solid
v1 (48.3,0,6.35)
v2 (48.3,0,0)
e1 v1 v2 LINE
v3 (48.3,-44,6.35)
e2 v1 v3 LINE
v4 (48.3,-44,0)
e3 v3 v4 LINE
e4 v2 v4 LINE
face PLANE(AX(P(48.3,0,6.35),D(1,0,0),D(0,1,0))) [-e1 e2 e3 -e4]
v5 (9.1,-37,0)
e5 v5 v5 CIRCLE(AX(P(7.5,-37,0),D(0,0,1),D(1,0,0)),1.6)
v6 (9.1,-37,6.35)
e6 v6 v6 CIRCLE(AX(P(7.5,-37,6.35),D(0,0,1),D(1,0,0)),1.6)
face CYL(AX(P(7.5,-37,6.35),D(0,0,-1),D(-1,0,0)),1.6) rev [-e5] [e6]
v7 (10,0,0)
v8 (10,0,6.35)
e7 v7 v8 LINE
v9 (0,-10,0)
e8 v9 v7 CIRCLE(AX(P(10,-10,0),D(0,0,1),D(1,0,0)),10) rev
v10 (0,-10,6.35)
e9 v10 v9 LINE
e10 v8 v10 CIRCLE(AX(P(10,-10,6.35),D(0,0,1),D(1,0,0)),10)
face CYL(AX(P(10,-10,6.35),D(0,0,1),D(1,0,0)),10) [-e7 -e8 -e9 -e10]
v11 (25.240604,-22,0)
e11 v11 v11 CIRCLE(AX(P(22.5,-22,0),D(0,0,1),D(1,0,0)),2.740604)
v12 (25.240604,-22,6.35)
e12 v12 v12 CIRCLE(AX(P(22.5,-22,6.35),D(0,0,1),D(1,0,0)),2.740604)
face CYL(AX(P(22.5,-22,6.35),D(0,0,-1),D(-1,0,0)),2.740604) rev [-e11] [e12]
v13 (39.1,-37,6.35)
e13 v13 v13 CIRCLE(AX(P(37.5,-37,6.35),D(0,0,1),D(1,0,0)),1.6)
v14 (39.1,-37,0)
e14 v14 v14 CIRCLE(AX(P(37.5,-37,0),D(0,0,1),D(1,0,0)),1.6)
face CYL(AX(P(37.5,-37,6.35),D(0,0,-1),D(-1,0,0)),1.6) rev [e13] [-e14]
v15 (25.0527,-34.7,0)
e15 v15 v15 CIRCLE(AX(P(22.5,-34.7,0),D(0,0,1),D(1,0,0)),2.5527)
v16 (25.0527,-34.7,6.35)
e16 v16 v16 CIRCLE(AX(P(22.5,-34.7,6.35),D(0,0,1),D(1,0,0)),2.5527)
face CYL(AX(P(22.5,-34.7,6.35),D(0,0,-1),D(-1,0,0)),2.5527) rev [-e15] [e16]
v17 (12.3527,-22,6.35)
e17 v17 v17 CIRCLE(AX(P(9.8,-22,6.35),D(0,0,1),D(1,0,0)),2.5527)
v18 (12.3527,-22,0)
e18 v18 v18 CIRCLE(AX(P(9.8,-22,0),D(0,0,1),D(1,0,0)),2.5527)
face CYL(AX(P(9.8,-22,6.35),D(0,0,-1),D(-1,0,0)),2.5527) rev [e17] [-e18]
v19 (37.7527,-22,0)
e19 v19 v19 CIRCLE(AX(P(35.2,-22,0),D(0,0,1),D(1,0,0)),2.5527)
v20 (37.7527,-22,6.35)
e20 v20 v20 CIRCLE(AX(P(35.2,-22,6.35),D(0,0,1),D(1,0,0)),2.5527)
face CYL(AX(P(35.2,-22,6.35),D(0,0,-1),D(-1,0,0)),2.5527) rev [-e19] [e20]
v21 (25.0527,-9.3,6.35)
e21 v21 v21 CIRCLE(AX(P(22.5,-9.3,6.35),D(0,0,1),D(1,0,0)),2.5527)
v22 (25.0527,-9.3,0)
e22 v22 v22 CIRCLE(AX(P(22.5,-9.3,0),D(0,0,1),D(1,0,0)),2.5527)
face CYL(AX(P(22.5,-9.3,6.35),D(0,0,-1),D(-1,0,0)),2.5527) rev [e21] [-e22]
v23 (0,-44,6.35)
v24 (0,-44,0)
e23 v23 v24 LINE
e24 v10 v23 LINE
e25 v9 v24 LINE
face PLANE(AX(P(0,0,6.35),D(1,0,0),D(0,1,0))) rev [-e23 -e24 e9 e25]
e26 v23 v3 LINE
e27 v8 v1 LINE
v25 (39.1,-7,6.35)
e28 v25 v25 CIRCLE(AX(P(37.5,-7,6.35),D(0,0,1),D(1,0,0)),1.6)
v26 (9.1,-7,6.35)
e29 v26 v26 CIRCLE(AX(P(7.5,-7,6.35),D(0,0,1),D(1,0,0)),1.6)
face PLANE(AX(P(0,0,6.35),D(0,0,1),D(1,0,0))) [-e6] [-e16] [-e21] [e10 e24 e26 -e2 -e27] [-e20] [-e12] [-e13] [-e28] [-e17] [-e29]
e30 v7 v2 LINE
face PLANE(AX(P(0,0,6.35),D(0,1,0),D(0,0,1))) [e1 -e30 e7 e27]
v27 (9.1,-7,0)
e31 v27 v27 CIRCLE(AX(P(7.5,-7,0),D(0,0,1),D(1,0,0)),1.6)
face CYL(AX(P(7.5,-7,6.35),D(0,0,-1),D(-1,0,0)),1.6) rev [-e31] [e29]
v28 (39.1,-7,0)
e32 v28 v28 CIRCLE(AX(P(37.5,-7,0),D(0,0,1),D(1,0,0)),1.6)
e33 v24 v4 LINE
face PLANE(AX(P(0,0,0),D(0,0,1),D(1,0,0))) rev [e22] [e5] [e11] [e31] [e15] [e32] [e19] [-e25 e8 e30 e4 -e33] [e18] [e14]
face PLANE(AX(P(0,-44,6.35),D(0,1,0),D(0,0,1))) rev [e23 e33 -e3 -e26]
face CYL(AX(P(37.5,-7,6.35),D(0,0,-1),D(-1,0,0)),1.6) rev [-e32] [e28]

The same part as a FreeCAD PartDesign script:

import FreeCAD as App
import Part
import Sketcher

V = App.Vector


def edges_at(feature, points):
    """Names of the edges that pass closest to the given points."""
    edges = feature.Shape.Edges
    near = lambda p: min(range(len(edges)), key=lambda i: edges[i].distToShape(Part.Vertex(*p))[0])
    return sorted({f"Edge{near(p) + 1}" for p in points})

doc = App.newDocument("Part")
params = doc.addObject("Spreadsheet::Sheet", "Params")
for row, (alias, value) in enumerate([
    ("sketch1_diameter", "3.2 mm"),
    ("sketch1_height", "44 mm"),
    ("sketch1_width", "48.3 mm"),
    ("pad1_length", "6.35 mm"),
    ("hole_diameter", "5.1054 mm"),
    ("fillet_radius", "10 mm"),
], start=1):
    params.set(f"A{row}", alias)
    params.set(f"B{row}", "=" + value)
    params.setAlias(f"B{row}", alias)

body = doc.addObject("PartDesign::Body", "Body")

sketch1 = body.newObject("Sketcher::SketchObject", "Sketch")
sketch1.AttachmentSupport = (doc.getObject("XY_Plane"), [""])
sketch1.MapMode = "FlatFace"
sketch1.addGeometry(Part.LineSegment(V(0, 0, 0), V(0, -44, 0)), False)
sketch1.addGeometry(Part.LineSegment(V(0, -44, 0), V(48.3, -44, 0)), False)
sketch1.addGeometry(Part.LineSegment(V(48.3, -44, 0), V(48.3, 0, 0)), False)
sketch1.addGeometry(Part.LineSegment(V(48.3, 0, 0), V(0, 0, 0)), False)
sketch1.addGeometry(Part.Circle(V(7.5, -37, 0), V(0, 0, 1), 1.6), False)
sketch1.addGeometry(Part.Circle(V(22.5, -34.7, 0), V(0, 0, 1), 2.5527), False)
sketch1.addGeometry(Part.Circle(V(37.5, -37, 0), V(0, 0, 1), 1.6), False)
sketch1.addGeometry(Part.Circle(V(9.8, -22, 0), V(0, 0, 1), 2.5527), False)
sketch1.addGeometry(Part.Circle(V(7.5, -7, 0), V(0, 0, 1), 1.6), False)
sketch1.addGeometry(Part.Circle(V(22.5, -22, 0), V(0, 0, 1), 2.740604), False)
sketch1.addGeometry(Part.Circle(V(35.2, -22, 0), V(0, 0, 1), 2.5527), False)
sketch1.addGeometry(Part.Circle(V(22.5, -9.3, 0), V(0, 0, 1), 2.5527), False)
sketch1.addGeometry(Part.Circle(V(37.5, -7, 0), V(0, 0, 1), 1.6), False)
sketch1.addConstraint(Sketcher.Constraint("Coincident", 0, 2, 1, 1))
sketch1.addConstraint(Sketcher.Constraint("Coincident", 1, 2, 2, 1))
sketch1.addConstraint(Sketcher.Constraint("Coincident", 2, 2, 3, 1))
sketch1.addConstraint(Sketcher.Constraint("Coincident", 3, 2, 0, 1))
sketch1.addConstraint(Sketcher.Constraint("Vertical", 0))
sketch1.addConstraint(Sketcher.Constraint("Horizontal", 1))
sketch1.addConstraint(Sketcher.Constraint("Vertical", 2))
sketch1.addConstraint(Sketcher.Constraint("Horizontal", 3))
sketch1.addConstraint(Sketcher.Constraint("Coincident", 3, 2, -1, 1))
sketch1.addConstraint(Sketcher.Constraint("Equal", 4, 6))
sketch1.addConstraint(Sketcher.Constraint("Equal", 5, 7))
sketch1.addConstraint(Sketcher.Constraint("Equal", 6, 8))
sketch1.addConstraint(Sketcher.Constraint("Equal", 7, 10))
sketch1.addConstraint(Sketcher.Constraint("Equal", 10, 11))
sketch1.addConstraint(Sketcher.Constraint("Equal", 8, 12))
sketch1.addConstraint(Sketcher.Constraint("Horizontal", 4, 3, 6, 3))
sketch1.addConstraint(Sketcher.Constraint("Horizontal", 7, 3, 9, 3))
sketch1.addConstraint(Sketcher.Constraint("Horizontal", 9, 3, 10, 3))
sketch1.addConstraint(Sketcher.Constraint("Horizontal", 8, 3, 12, 3))
sketch1.addConstraint(Sketcher.Constraint("Vertical", 4, 3, 8, 3))
sketch1.addConstraint(Sketcher.Constraint("Vertical", 5, 3, 9, 3))
sketch1.addConstraint(Sketcher.Constraint("Vertical", 9, 3, 11, 3))
sketch1.addConstraint(Sketcher.Constraint("Vertical", 6, 3, 12, 3))
sketch1.addConstraint(Sketcher.Constraint("Diameter", 4, 3.2))
sketch1.addConstraint(Sketcher.Constraint("DistanceY", 0, 2, 0, 1, 44.0))
sketch1.addConstraint(Sketcher.Constraint("DistanceX", 1, 1, 1, 2, 48.3))
sketch1.addConstraint(Sketcher.Constraint("DistanceY", 4, 3, -1, 1, 37.0))
sketch1.addConstraint(Sketcher.Constraint("DistanceY", 7, 3, -1, 1, 22.0))
sketch1.addConstraint(Sketcher.Constraint("DistanceY", 8, 3, -1, 1, 7.0))
sketch1.addConstraint(Sketcher.Constraint("DistanceX", 4, 3, 5, 3, 15.0))
sketch1.addConstraint(Sketcher.Constraint("DistanceX", 5, 3, 6, 3, 15.0))
sketch1.addConstraint(Sketcher.Constraint("Diameter", 5, 5.1054))
sketch1.addConstraint(Sketcher.Constraint("DistanceX", -1, 1, 4, 3, 7.5))
sketch1.addConstraint(Sketcher.Constraint("DistanceY", 5, 3, -1, 1, 34.7))
sketch1.addConstraint(Sketcher.Constraint("DistanceX", -1, 1, 7, 3, 9.8))
sketch1.addConstraint(Sketcher.Constraint("DistanceX", -1, 1, 10, 3, 35.2))
sketch1.addConstraint(Sketcher.Constraint("DistanceY", 11, 3, -1, 1, 9.3))
sketch1.addConstraint(Sketcher.Constraint("Diameter", 9, 5.481208))
sketch1.setExpression("Constraints[23]", "Params.sketch1_diameter")
sketch1.setExpression("Constraints[24]", "Params.sketch1_height")
sketch1.setExpression("Constraints[25]", "Params.sketch1_width")
pad1 = body.newObject("PartDesign::Pad", "Pad")
pad1.Profile = sketch1
pad1.setExpression("Length", "Params.pad1_length")

sketch2 = body.newObject("Sketcher::SketchObject", "Sketch001")
sketch2.AttachmentSupport = (doc.getObject("XY_Plane"), [""])
sketch2.MapMode = "FlatFace"
sketch2.AttachmentOffset = App.Placement(V(0, 0, 6.35), App.Rotation())
sketch2.addGeometry(Part.Circle(V(22.5, -9.3, 0), V(0, 0, 1), 2.5527), False)
sketch2.addGeometry(Part.Circle(V(35.2, -22, 0), V(0, 0, 1), 2.5527), False)
sketch2.addGeometry(Part.Circle(V(9.8, -22, 0), V(0, 0, 1), 2.5527), False)
sketch2.addGeometry(Part.Circle(V(22.5, -34.7, 0), V(0, 0, 1), 2.5527), False)
sketch2.addConstraint(Sketcher.Constraint("Equal", 0, 1))
sketch2.addConstraint(Sketcher.Constraint("Equal", 1, 2))
sketch2.addConstraint(Sketcher.Constraint("Equal", 2, 3))
sketch2.addConstraint(Sketcher.Constraint("Horizontal", 1, 3, 2, 3))
sketch2.addConstraint(Sketcher.Constraint("Vertical", 0, 3, 3, 3))
sketch2.addConstraint(Sketcher.Constraint("DistanceY", 1, 3, -1, 1, 22.0))
sketch2.addConstraint(Sketcher.Constraint("Diameter", 0, 5.1054))
sketch2.addConstraint(Sketcher.Constraint("DistanceX", -1, 1, 0, 3, 22.5))
sketch2.addConstraint(Sketcher.Constraint("DistanceY", 0, 3, -1, 1, 9.3))
sketch2.addConstraint(Sketcher.Constraint("DistanceX", -1, 1, 1, 3, 35.2))
sketch2.addConstraint(Sketcher.Constraint("DistanceX", -1, 1, 2, 3, 9.8))
sketch2.addConstraint(Sketcher.Constraint("DistanceY", 3, 3, -1, 1, 34.7))
doc.recompute()
hole = body.newObject("PartDesign::Hole", "Hole")
hole.Profile = sketch2
hole.ThreadType = "None"
hole.setExpression("Diameter", "Params.hole_diameter")
hole.DepthType = "ThroughAll"
doc.recompute()

fillet = body.newObject("PartDesign::Fillet", "Fillet")
fillet.Base = (hole, edges_at(hole, [(0, 0, 3.175)]))
fillet.setExpression("Radius", "Params.fillet_radius")

doc.recompute()
